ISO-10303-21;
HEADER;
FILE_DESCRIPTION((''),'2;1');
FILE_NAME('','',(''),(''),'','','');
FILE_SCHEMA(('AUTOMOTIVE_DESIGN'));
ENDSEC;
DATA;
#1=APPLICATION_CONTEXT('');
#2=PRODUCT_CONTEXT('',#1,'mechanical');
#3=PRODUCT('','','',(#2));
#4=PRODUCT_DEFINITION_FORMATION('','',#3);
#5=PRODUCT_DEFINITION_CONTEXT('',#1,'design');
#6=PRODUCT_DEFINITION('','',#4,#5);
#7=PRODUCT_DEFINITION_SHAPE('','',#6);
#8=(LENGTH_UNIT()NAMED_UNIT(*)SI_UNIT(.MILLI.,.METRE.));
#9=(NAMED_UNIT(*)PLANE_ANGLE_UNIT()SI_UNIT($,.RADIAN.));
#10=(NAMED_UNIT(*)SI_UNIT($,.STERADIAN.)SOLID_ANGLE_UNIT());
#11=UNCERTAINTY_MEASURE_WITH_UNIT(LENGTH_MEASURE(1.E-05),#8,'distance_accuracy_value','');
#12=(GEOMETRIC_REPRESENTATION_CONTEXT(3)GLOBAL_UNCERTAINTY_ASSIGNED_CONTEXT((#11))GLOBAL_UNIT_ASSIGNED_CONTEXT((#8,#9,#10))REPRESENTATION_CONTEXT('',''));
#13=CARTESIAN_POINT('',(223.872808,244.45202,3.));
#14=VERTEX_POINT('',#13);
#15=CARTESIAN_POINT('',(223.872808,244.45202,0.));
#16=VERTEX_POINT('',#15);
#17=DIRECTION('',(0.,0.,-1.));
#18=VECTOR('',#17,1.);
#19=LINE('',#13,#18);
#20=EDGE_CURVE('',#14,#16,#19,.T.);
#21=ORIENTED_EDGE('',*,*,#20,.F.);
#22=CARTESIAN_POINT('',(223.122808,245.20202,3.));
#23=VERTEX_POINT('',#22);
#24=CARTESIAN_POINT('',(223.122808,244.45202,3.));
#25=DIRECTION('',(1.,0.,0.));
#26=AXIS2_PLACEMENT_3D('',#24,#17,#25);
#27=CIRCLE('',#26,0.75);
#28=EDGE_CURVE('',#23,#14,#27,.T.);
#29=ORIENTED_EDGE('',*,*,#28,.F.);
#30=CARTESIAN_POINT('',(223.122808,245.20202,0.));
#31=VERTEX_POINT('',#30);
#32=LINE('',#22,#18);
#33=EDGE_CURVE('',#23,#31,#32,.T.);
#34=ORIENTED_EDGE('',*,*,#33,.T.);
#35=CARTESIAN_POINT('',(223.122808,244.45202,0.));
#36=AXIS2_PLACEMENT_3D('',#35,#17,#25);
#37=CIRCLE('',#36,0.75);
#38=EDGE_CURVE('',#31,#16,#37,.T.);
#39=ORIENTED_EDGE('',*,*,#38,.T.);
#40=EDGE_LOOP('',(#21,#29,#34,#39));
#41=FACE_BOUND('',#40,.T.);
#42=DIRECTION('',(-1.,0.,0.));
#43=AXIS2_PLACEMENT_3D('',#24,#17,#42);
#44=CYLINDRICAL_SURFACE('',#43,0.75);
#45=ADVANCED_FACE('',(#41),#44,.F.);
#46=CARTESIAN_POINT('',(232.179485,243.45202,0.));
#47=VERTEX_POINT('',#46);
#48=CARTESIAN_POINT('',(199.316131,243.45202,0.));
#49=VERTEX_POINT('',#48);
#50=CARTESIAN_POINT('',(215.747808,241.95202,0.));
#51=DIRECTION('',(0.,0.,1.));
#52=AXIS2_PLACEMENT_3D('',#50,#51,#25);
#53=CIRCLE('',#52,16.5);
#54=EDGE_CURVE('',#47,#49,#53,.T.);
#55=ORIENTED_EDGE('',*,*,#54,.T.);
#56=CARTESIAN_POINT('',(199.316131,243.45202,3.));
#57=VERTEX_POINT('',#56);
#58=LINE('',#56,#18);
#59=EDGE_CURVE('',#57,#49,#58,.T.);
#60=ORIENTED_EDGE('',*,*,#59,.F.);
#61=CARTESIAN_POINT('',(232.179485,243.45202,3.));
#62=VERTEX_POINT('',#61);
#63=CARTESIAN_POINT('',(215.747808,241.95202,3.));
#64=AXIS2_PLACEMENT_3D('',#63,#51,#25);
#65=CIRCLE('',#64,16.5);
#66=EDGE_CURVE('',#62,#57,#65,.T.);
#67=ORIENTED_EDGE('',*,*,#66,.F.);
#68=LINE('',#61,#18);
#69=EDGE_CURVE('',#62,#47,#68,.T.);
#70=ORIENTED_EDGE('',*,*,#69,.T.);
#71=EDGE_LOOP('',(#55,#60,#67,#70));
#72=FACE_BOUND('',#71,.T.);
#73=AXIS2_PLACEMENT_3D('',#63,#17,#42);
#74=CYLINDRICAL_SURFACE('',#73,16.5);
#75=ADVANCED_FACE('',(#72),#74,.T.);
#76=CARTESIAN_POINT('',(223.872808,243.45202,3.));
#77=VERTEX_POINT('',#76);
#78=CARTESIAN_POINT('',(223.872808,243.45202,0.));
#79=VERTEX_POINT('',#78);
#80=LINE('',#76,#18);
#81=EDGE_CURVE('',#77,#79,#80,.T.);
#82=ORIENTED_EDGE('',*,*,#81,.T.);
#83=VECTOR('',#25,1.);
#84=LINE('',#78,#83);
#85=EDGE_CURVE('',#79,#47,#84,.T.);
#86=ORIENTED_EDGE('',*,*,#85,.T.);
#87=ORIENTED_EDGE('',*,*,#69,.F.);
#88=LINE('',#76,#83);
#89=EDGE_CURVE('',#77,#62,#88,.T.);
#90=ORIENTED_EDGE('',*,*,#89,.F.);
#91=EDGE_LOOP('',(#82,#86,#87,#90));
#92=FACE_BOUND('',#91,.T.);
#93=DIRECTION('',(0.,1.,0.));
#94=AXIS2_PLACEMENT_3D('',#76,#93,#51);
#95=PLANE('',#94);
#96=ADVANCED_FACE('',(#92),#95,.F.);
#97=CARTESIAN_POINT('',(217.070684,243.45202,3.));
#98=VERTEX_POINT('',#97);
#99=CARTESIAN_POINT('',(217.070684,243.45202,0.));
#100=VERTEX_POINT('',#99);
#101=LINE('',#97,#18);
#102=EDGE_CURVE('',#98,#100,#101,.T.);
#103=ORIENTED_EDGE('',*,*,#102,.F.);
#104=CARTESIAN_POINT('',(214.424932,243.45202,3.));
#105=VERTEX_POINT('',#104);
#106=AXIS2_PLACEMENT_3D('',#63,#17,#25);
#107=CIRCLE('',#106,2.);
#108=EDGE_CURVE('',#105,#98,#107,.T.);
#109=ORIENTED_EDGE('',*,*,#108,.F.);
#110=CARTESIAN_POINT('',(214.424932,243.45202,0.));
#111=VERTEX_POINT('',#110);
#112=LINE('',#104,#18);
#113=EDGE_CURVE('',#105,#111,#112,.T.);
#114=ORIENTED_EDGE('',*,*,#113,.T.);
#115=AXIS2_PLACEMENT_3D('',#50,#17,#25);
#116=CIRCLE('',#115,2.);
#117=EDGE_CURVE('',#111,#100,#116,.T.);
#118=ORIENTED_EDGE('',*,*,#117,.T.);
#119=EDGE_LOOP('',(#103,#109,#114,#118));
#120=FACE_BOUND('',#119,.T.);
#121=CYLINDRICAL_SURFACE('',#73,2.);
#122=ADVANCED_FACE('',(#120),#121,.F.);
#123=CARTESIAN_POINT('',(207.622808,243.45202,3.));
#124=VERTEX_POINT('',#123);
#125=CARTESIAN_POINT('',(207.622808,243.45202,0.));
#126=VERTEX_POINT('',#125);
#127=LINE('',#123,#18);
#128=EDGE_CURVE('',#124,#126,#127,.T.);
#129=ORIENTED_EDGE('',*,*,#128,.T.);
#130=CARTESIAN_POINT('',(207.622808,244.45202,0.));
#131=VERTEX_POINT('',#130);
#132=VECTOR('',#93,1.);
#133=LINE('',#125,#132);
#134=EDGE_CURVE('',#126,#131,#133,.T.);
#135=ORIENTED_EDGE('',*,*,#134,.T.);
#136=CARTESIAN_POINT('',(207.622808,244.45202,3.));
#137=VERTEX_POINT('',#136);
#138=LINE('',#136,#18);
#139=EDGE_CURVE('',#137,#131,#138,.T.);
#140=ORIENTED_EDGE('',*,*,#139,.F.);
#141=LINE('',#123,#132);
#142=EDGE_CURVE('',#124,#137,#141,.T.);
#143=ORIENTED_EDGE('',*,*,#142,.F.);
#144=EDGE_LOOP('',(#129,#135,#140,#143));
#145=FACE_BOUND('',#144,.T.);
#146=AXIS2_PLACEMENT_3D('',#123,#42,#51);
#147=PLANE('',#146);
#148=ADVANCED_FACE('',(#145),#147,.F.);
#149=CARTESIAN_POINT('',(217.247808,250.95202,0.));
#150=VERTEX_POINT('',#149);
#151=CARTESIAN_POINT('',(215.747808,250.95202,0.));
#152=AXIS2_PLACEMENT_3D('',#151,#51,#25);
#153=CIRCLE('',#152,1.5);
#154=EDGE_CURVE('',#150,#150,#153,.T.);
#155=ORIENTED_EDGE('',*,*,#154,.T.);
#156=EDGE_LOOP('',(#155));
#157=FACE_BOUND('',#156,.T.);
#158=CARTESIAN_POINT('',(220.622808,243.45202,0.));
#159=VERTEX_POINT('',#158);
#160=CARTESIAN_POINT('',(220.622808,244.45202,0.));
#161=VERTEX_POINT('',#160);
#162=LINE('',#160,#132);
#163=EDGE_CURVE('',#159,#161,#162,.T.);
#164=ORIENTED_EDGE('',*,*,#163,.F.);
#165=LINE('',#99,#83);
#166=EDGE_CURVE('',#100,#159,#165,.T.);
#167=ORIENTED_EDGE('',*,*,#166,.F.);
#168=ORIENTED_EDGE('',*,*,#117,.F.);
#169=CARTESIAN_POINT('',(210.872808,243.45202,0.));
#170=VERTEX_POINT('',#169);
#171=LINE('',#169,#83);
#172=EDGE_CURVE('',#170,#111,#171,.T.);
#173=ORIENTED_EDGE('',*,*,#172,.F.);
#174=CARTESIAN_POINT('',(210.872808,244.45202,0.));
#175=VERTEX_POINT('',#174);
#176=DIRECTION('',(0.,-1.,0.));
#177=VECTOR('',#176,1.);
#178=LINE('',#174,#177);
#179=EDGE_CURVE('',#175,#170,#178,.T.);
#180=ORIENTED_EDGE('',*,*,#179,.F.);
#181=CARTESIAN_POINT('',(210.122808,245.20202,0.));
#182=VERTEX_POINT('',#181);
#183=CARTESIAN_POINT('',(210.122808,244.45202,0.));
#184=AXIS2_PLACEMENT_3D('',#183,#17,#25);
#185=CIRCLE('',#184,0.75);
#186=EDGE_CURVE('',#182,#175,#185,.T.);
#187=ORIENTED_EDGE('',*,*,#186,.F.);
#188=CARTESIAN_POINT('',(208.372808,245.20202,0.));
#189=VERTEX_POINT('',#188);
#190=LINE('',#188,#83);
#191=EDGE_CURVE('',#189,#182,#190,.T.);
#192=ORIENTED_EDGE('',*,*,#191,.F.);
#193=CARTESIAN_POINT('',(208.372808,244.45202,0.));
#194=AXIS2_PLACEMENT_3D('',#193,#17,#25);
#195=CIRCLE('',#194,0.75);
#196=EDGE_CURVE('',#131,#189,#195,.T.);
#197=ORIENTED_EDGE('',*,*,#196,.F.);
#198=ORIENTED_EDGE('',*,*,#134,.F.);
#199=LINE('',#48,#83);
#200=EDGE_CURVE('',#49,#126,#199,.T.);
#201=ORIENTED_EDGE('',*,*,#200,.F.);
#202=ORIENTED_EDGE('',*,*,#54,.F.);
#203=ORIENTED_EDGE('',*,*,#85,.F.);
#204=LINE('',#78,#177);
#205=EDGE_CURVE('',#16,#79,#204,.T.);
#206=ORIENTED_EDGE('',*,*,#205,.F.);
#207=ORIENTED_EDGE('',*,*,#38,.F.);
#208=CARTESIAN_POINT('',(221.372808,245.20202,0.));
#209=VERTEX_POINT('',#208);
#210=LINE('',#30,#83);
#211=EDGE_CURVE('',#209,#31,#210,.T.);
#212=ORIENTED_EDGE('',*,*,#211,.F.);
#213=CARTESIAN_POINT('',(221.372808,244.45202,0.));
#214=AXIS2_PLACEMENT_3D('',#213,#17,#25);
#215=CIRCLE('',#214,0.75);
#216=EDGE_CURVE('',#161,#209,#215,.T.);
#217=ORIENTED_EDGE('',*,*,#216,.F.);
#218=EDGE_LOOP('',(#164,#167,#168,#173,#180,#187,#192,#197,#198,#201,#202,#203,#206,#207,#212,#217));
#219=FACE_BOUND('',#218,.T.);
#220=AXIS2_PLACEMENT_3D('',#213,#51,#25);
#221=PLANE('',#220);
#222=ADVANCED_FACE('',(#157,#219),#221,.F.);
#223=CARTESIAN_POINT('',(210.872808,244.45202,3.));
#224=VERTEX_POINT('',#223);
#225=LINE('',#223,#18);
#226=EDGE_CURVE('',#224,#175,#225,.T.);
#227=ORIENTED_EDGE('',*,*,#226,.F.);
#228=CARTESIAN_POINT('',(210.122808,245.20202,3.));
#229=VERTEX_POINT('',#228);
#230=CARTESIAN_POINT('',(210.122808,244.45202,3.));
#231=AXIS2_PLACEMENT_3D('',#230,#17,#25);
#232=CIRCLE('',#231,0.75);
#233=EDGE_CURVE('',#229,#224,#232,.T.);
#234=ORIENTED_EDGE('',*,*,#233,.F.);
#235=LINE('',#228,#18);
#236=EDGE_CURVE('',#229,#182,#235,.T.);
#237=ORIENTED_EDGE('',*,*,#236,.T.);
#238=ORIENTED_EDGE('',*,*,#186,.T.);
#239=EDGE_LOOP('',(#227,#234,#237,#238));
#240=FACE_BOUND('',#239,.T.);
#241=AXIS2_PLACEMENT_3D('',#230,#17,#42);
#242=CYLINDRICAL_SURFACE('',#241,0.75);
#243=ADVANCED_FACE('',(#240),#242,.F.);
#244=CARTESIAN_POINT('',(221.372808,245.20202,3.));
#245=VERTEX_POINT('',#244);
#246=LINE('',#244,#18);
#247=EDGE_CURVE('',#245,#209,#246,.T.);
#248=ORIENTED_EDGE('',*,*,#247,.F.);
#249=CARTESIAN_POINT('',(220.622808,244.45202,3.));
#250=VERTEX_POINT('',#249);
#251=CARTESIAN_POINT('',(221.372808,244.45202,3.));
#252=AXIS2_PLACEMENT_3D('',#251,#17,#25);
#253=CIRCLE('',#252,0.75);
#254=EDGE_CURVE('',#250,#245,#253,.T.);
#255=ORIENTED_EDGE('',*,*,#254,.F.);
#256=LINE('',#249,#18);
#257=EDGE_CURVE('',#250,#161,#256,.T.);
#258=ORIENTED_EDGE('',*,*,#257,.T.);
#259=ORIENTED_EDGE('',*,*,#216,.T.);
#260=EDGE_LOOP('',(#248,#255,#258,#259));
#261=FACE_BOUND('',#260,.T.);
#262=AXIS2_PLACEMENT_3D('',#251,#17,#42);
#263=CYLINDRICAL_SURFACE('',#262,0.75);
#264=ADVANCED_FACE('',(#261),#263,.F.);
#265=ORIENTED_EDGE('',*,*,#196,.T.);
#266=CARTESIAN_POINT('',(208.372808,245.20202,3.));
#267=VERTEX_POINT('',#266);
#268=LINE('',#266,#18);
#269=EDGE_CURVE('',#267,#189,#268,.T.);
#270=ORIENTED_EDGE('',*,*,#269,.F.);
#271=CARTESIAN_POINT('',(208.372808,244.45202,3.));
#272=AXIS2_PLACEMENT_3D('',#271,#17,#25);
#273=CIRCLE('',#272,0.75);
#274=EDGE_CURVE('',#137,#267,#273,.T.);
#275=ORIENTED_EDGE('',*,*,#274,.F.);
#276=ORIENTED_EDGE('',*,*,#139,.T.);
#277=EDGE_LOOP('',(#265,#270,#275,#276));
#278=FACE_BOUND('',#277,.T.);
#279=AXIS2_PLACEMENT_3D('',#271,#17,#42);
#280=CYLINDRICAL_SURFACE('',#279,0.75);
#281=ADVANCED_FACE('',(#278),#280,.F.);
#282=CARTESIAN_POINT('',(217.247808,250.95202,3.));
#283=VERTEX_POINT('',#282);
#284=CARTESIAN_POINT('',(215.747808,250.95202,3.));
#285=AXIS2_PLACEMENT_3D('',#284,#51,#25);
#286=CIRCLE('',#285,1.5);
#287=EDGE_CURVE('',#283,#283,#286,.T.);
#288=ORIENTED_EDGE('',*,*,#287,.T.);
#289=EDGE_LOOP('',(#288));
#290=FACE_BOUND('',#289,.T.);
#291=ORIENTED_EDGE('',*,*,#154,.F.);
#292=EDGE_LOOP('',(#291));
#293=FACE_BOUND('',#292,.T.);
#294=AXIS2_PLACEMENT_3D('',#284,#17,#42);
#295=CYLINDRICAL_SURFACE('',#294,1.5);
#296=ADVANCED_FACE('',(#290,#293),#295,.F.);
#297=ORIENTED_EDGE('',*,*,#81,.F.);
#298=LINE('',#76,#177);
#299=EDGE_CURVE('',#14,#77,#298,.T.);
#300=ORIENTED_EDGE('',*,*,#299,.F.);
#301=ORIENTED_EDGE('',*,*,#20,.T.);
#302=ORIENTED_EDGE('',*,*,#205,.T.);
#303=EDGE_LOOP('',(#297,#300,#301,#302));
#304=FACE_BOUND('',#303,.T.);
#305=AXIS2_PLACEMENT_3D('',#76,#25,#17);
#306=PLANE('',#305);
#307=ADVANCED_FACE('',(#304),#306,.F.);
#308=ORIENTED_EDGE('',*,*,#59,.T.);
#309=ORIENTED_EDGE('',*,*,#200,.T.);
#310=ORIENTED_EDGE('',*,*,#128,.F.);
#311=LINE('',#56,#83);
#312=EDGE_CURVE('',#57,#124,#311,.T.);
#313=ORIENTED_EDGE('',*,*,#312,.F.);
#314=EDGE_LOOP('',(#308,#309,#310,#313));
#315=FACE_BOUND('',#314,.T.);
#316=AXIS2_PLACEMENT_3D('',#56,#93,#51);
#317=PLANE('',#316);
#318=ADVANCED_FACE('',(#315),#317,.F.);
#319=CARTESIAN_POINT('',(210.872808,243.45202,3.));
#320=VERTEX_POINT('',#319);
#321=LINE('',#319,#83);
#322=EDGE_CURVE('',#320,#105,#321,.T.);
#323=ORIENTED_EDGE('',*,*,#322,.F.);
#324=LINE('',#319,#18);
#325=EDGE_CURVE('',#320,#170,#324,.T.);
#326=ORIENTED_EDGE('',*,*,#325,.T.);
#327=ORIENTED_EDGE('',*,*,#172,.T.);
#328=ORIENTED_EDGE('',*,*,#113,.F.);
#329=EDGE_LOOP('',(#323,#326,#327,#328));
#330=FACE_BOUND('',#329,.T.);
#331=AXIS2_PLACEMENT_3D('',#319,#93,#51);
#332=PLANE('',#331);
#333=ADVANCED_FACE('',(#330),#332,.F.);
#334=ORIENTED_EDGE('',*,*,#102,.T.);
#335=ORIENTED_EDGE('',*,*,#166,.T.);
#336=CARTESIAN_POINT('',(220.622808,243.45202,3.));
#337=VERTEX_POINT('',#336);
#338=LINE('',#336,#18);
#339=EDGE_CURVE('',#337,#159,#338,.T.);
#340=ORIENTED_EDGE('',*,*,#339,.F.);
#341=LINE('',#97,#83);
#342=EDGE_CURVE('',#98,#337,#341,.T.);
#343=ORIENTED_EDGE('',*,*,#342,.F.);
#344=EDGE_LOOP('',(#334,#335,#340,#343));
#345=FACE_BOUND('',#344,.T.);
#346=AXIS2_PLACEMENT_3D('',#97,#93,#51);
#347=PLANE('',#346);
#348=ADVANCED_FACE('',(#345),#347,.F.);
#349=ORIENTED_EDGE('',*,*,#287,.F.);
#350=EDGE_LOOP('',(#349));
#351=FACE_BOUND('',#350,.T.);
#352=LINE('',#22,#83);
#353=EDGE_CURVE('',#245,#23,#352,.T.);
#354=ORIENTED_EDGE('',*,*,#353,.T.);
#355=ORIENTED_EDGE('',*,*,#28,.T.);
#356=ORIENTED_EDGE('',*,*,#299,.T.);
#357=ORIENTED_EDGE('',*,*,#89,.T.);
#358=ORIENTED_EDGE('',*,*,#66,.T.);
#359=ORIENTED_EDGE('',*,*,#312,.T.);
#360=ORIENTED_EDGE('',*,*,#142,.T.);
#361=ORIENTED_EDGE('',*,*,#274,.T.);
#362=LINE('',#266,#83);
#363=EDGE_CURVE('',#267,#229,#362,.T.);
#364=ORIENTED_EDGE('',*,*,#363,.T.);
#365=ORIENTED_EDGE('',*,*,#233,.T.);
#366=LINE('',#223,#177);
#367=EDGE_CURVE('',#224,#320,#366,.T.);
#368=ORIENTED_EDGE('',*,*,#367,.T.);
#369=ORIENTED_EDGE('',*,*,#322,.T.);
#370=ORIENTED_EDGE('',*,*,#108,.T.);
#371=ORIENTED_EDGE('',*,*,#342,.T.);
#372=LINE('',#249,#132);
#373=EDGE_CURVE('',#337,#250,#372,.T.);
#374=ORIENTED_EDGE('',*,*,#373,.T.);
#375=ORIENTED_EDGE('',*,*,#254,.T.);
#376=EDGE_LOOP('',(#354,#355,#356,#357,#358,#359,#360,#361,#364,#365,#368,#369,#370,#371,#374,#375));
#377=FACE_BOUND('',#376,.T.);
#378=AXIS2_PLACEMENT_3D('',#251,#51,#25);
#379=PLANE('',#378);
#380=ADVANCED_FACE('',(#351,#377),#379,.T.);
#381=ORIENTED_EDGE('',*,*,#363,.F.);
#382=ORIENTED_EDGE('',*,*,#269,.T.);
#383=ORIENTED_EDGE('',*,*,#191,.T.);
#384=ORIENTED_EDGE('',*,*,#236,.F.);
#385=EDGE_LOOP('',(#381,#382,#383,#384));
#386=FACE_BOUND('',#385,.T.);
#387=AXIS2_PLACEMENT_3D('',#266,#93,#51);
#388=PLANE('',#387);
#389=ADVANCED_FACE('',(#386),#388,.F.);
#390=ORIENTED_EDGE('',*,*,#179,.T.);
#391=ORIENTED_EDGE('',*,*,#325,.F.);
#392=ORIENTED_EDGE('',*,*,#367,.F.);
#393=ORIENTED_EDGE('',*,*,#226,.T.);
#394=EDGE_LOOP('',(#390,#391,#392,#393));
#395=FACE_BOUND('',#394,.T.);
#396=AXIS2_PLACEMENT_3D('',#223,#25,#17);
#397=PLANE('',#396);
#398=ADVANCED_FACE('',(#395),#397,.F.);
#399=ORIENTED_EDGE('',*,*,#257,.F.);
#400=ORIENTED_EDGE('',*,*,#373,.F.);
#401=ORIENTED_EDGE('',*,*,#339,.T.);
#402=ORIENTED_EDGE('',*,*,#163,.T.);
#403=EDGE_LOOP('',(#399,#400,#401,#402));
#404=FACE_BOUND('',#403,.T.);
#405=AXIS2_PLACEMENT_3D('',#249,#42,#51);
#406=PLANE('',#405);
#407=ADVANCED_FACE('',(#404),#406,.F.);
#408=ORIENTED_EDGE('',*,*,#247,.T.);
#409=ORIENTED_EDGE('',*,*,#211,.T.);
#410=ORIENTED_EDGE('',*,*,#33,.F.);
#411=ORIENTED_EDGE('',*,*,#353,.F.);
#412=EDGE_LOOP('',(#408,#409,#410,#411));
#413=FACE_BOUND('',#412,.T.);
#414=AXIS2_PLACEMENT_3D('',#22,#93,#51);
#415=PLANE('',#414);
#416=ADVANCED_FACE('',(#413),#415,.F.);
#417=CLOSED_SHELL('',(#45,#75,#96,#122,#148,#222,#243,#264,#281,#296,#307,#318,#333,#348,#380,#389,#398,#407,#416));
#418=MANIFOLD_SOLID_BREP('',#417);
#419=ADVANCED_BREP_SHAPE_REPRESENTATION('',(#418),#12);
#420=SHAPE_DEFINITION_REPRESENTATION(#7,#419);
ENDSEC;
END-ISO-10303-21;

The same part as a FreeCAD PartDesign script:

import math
import FreeCAD as App
import Part
import Sketcher

V = App.Vector
Q = App.Units.Quantity

doc = App.newDocument("Part")
body = doc.addObject("PartDesign::Body", "Body")

# Sketch on XY plane
sketch1 = body.newObject("Sketcher::SketchObject", "Sketch")
sketch1.AttachmentSupport = (doc.getObject("XY_Plane"), [""])
sketch1.MapMode = "FlatFace"
sketch1.addGeometry(Part.LineSegment(V(221.4, 245.2, 0), V(223.1, 245.2, 0)), False)
sketch1.addGeometry(Part.ArcOfCircle(Part.Circle(V(223.1, 244.5, 0), V(0, 0, 1), 0.8), math.radians(0), math.radians(90)), False)
sketch1.addGeometry(Part.LineSegment(V(223.9, 244.5, 0), V(223.9, 243.5, 0)), False)
sketch1.addGeometry(Part.LineSegment(V(223.9, 243.5, 0), V(232.2, 243.5, 0)), False)
sketch1.addGeometry(Part.ArcOfCircle(Part.Circle(V(215.7, 242, 0), V(0, 0, 1), 16.5), math.radians(5), math.radians(175)), False)
sketch1.addGeometry(Part.LineSegment(V(199.3, 243.5, 0), V(207.6, 243.5, 0)), False)
sketch1.addGeometry(Part.LineSegment(V(207.6, 243.5, 0), V(207.6, 244.5, 0)), False)
sketch1.addGeometry(Part.ArcOfCircle(Part.Circle(V(208.4, 244.5, 0), V(0, 0, 1), 0.8), math.radians(90), math.radians(180)), False)
sketch1.addGeometry(Part.LineSegment(V(208.4, 245.2, 0), V(210.1, 245.2, 0)), False)
sketch1.addGeometry(Part.ArcOfCircle(Part.Circle(V(210.1, 244.5, 0), V(0, 0, 1), 0.8), math.radians(0), math.radians(90)), False)
sketch1.addGeometry(Part.LineSegment(V(210.9, 244.5, 0), V(210.9, 243.5, 0)), False)
sketch1.addGeometry(Part.LineSegment(V(210.9, 243.5, 0), V(214.4, 243.5, 0)), False)
sketch1.addGeometry(Part.ArcOfCircle(Part.Circle(V(215.7, 242, 0), V(0, 0, 1), 2), math.radians(49), math.radians(131)), False)
sketch1.addGeometry(Part.LineSegment(V(217.1, 243.5, 0), V(220.6, 243.5, 0)), False)
sketch1.addGeometry(Part.LineSegment(V(220.6, 243.5, 0), V(220.6, 244.5, 0)), False)
sketch1.addGeometry(Part.ArcOfCircle(Part.Circle(V(221.4, 244.5, 0), V(0, 0, 1), 0.8), math.radians(90), math.radians(180)), False)
sketch1.addGeometry(Part.Circle(V(215.7, 251, 0), V(0, 0, 1), 1.5), False)
sketch1.addConstraint(Sketcher.Constraint("Tangent", 0, 2, 1, 2))
sketch1.addConstraint(Sketcher.Constraint("Tangent", 1, 1, 2, 1))
sketch1.addConstraint(Sketcher.Constraint("Coincident", 2, 2, 3, 1))
sketch1.addConstraint(Sketcher.Constraint("Coincident", 3, 2, 4, 1))
sketch1.addConstraint(Sketcher.Constraint("Coincident", 4, 2, 5, 1))
sketch1.addConstraint(Sketcher.Constraint("Coincident", 5, 2, 6, 1))
sketch1.addConstraint(Sketcher.Constraint("Tangent", 6, 2, 7, 2))
sketch1.addConstraint(Sketcher.Constraint("Tangent", 7, 1, 8, 1))
sketch1.addConstraint(Sketcher.Constraint("Tangent", 8, 2, 9, 2))
sketch1.addConstraint(Sketcher.Constraint("Tangent", 9, 1, 10, 1))
sketch1.addConstraint(Sketcher.Constraint("Coincident", 10, 2, 11, 1))
sketch1.addConstraint(Sketcher.Constraint("Coincident", 11, 2, 12, 2))
sketch1.addConstraint(Sketcher.Constraint("Coincident", 12, 1, 13, 1))
sketch1.addConstraint(Sketcher.Constraint("Coincident", 13, 2, 14, 1))
sketch1.addConstraint(Sketcher.Constraint("Tangent", 14, 2, 15, 2))
sketch1.addConstraint(Sketcher.Constraint("Tangent", 15, 1, 0, 1))
sketch1.addConstraint(Sketcher.Constraint("Horizontal", 0))
sketch1.addConstraint(Sketcher.Constraint("Vertical", 2))
sketch1.addConstraint(Sketcher.Constraint("Horizontal", 3))
sketch1.addConstraint(Sketcher.Constraint("Horizontal", 5))
sketch1.addConstraint(Sketcher.Constraint("Vertical", 6))
sketch1.addConstraint(Sketcher.Constraint("Horizontal", 8))
sketch1.addConstraint(Sketcher.Constraint("Vertical", 10))
sketch1.addConstraint(Sketcher.Constraint("Horizontal", 11))
sketch1.addConstraint(Sketcher.Constraint("Horizontal", 13))
sketch1.addConstraint(Sketcher.Constraint("Vertical", 14))
sketch1.addConstraint(Sketcher.Constraint("Coincident", 12, 3, 4, 3))
sketch1.addConstraint(Sketcher.Constraint("Equal", 1, 7))
sketch1.addConstraint(Sketcher.Constraint("Equal", 7, 9))
sketch1.addConstraint(Sketcher.Constraint("Equal", 9, 15))
sketch1.addConstraint(Sketcher.Constraint("Horizontal", 1, 3, 7, 3))
sketch1.addConstraint(Sketcher.Constraint("Horizontal", 3, 2, 4, 2))
sketch1.addConstraint(Sketcher.Constraint("Horizontal", 5, 2, 10, 2))
sketch1.addConstraint(Sketcher.Constraint("Horizontal", 11, 2, 12, 1))
sketch1.addConstraint(Sketcher.Constraint("Vertical", 12, 3, 16, 3))
sketch1.addConstraint(Sketcher.Constraint("Equal", 3, 5))
sketch1.addConstraint(Sketcher.Constraint("Equal", 0, 8))
sketch1.addConstraint(Sketcher.Constraint("Diameter", 16, Q("3 mm")))
sketch1.addConstraint(Sketcher.Constraint("Radius", 12, Q("2 mm")))
sketch1.addConstraint(Sketcher.Constraint("Radius", 4, Q("16.5 mm")))
sketch1.addConstraint(Sketcher.Constraint("DistanceY", 2, 2, 2, 1, Q("1 mm")))
sketch1.addConstraint(Sketcher.Constraint("Radius", 1, Q("0.75 mm")))
sketch1.addConstraint(Sketcher.Constraint("DistanceX", 9, 3, 1, 3, Q("13 mm")))
sketch1.addConstraint(Sketcher.Constraint("DistanceY", 4, 3, 16, 3, Q("9 mm")))
sketch1.addConstraint(Sketcher.Constraint("DistanceX", 0, 1, 0, 2, Q("1.75 mm")))
sketch1.addConstraint(Sketcher.Constraint("DistanceY", 4, 3, 1, 3, Q("2.5 mm")))
sketch1.addConstraint(Sketcher.Constraint("DistanceY", -1, 1, 1, 3, Q("244.45202 mm")))
sketch1.addConstraint(Sketcher.Constraint("DistanceX", -1, 1, 4, 2, Q("199.316131 mm")))
pad1 = body.newObject("PartDesign::Pad", "Pad")
pad1.Profile = sketch1
pad1.Length = 3

doc.recompute()
